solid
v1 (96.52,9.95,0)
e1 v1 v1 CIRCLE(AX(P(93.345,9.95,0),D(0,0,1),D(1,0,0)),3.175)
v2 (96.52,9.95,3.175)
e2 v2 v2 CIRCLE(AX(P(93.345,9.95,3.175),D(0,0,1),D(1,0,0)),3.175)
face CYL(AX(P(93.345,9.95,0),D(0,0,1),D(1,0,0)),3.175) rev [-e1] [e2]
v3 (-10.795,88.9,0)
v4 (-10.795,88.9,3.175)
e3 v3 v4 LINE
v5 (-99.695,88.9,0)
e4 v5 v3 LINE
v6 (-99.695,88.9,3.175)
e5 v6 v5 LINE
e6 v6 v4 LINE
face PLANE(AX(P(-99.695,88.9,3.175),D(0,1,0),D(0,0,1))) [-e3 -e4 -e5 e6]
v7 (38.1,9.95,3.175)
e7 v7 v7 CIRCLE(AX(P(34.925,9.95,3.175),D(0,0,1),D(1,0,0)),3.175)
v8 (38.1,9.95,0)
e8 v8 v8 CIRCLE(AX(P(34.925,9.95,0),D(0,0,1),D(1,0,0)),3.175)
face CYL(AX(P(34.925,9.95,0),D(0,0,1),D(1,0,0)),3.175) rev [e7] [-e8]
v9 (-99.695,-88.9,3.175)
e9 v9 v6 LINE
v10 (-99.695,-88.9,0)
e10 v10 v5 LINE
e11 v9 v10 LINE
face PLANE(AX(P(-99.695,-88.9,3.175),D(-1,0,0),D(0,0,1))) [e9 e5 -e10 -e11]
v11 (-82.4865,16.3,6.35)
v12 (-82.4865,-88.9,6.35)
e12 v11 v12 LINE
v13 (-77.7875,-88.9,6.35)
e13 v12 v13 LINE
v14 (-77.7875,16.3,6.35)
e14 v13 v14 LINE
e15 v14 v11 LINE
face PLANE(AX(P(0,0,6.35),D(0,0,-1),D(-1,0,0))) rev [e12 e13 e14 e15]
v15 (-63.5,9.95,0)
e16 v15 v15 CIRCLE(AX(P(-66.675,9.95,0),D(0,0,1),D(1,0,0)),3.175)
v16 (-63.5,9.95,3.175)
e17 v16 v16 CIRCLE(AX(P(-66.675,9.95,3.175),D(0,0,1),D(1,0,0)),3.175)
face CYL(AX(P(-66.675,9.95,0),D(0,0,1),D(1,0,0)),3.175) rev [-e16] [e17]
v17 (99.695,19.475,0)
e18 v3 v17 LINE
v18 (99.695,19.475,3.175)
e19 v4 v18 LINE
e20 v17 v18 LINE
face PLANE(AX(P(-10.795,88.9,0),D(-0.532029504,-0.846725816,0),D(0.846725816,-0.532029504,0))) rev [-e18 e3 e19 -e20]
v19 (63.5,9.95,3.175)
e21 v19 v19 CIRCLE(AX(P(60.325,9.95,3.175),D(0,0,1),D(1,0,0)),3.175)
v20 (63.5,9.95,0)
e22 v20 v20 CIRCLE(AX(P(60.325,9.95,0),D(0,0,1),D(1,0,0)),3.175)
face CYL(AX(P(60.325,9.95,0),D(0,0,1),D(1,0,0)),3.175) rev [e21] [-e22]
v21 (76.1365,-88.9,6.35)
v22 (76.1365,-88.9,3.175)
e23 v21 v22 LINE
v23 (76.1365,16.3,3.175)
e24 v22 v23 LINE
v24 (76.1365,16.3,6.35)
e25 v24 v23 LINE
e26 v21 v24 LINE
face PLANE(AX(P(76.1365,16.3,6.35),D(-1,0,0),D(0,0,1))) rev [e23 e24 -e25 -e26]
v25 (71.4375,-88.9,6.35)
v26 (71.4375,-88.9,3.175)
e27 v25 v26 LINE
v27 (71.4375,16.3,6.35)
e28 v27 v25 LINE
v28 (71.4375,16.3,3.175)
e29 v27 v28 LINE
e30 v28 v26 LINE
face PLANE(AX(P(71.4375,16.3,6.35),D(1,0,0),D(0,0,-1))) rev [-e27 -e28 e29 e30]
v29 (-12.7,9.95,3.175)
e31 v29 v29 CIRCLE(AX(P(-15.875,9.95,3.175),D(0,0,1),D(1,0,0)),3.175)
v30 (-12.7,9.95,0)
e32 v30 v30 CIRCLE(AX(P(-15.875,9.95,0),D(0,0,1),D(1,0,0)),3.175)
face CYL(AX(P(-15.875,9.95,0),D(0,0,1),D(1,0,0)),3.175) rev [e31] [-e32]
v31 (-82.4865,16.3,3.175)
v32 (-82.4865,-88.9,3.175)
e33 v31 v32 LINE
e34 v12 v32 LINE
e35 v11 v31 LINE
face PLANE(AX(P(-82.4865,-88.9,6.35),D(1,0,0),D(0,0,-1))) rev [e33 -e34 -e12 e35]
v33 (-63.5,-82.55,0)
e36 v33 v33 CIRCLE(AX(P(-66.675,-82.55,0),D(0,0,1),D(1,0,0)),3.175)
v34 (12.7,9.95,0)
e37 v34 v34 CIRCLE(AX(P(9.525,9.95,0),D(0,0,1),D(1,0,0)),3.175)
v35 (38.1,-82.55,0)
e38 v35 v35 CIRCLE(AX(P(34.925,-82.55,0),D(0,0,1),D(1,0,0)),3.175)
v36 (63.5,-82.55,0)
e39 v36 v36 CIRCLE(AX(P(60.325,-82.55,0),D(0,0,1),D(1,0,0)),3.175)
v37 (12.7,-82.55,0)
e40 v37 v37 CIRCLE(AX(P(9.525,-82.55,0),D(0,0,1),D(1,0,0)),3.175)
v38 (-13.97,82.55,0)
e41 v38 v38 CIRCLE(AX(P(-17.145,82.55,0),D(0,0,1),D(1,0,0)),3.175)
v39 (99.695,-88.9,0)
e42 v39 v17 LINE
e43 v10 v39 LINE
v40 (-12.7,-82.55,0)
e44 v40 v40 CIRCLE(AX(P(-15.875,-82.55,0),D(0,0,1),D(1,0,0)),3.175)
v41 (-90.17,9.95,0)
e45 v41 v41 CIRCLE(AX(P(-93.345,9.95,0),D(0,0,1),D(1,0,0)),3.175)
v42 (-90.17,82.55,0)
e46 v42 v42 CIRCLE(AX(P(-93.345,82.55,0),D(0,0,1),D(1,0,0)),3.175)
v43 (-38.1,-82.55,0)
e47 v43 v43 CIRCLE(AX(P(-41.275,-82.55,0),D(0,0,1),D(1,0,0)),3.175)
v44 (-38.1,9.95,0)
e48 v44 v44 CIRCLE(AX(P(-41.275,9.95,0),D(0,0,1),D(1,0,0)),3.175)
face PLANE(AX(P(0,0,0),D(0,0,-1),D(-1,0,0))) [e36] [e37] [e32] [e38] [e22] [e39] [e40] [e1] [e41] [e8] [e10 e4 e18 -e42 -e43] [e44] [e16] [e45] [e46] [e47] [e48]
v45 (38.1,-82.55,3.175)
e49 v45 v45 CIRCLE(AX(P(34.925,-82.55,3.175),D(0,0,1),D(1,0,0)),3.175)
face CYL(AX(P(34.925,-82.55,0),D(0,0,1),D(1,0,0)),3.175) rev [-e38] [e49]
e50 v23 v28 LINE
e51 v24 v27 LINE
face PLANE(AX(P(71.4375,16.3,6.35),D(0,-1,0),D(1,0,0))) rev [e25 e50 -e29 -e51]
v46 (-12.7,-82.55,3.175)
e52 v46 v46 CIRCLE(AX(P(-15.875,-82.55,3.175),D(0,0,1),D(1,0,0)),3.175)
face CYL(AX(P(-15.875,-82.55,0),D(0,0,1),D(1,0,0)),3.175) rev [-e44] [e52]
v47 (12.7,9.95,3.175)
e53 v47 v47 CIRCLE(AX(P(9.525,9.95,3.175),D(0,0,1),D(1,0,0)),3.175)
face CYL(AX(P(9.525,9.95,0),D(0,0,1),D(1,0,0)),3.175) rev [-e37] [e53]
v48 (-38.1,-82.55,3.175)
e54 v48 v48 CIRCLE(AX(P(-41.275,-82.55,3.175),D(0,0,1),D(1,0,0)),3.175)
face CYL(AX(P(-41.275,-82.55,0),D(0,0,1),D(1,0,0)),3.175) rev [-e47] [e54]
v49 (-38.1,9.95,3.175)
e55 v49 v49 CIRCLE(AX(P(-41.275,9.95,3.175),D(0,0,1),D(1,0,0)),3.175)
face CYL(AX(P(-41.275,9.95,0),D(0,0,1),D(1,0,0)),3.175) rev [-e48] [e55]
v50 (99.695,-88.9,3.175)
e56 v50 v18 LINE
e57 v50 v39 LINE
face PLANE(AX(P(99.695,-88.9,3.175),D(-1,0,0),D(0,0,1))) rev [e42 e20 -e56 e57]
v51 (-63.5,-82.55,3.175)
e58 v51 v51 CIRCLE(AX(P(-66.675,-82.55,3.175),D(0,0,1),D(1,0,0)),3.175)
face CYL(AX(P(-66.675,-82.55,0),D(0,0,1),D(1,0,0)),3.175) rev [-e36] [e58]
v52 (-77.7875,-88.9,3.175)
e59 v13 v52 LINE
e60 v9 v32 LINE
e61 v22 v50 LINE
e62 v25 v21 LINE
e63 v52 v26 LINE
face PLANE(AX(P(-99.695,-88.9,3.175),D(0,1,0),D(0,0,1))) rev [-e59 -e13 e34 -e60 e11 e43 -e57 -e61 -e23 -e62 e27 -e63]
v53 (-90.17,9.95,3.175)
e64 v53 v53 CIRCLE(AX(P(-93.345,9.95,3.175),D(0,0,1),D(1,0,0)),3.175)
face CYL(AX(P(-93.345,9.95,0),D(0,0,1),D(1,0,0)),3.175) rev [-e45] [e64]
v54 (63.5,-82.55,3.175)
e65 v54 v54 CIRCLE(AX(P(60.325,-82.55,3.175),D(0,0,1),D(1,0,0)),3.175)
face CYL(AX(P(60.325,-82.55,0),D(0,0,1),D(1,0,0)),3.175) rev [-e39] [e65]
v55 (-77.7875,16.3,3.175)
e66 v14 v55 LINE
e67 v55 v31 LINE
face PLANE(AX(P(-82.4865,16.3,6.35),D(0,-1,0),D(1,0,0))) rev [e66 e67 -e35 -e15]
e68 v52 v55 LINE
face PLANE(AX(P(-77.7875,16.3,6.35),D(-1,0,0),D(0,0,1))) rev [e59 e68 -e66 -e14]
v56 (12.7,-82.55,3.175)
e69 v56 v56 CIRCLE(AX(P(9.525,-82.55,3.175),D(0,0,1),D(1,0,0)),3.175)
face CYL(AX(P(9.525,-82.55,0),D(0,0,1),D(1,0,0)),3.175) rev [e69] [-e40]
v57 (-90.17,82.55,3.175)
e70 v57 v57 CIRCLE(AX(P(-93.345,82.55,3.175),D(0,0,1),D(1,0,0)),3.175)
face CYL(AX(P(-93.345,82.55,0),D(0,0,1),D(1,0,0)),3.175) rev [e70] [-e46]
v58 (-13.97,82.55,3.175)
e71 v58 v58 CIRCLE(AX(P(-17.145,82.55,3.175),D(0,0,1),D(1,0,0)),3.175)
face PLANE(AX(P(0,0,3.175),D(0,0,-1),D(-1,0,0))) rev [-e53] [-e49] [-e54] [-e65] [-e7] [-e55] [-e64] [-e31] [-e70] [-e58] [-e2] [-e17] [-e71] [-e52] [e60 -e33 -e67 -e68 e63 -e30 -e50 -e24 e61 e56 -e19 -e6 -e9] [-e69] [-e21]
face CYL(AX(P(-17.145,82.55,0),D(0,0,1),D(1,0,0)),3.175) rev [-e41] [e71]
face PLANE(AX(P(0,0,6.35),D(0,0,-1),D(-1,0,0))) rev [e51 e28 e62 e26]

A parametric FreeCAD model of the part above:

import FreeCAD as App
import Part
import Sketcher
from FreeCAD import Vector
Q = App.Units.Quantity

doc = App.newDocument("Part")
body = doc.addObject("PartDesign::Body", "Body")

# Sketch on XY plane
sketch1 = doc.addObject("Sketcher::SketchObject", "Sketch")
body.addObject(sketch1)
sketch1.AttachmentSupport = (doc.XY_Plane, [""])
sketch1.MapMode = "FlatFace"
sketch1.addGeometry(Part.LineSegment(Vector(-100, 89, 0), Vector(-100, -89, 0)), False)
sketch1.addGeometry(Part.LineSegment(Vector(-100, -89, 0), Vector(100, -89, 0)), False)
sketch1.addGeometry(Part.LineSegment(Vector(100, -89, 0), Vector(100, 89, 0)), False)
sketch1.addGeometry(Part.LineSegment(Vector(100, 89, 0), Vector(-100, 89, 0)), False)
sketch1.addConstraint(Sketcher.Constraint("Coincident", 0, 2, 1, 1))
sketch1.addConstraint(Sketcher.Constraint("Coincident", 1, 2, 2, 1))
sketch1.addConstraint(Sketcher.Constraint("Coincident", 2, 2, 3, 1))
sketch1.addConstraint(Sketcher.Constraint("Coincident", 3, 2, 0, 1))
sketch1.addConstraint(Sketcher.Constraint("Vertical", 0))
sketch1.addConstraint(Sketcher.Constraint("Horizontal", 1))
sketch1.addConstraint(Sketcher.Constraint("Vertical", 2))
sketch1.addConstraint(Sketcher.Constraint("Horizontal", 3))
sketch1.addConstraint(Sketcher.Constraint("Symmetric", 0, 2, 2, 2, -1, 1))
sketch1.addConstraint(Sketcher.Constraint("DistanceY", 0, 2, 0, 1, Q("7 in")))
sketch1.addConstraint(Sketcher.Constraint("DistanceX", 1, 1, 1, 2, Q("7.85 in")))
pad1 = doc.addObject("PartDesign::Pad", "Pad")
body.addObject(pad1)
pad1.Profile = sketch1
pad1.Length = Q("0.125 in")

# Sketch on XY plane
sketch2 = doc.addObject("Sketcher::SketchObject", "Sketch001")
body.addObject(sketch2)
sketch2.AttachmentSupport = (doc.XY_Plane, [""])
sketch2.MapMode = "FlatFace"
sketch2.AttachmentOffset = App.Placement(Vector(0, 0, 0.125 * 25.4), App.Rotation())
sketch2.addGeometry(Part.LineSegment(Vector(100, 19, 0), Vector(100, 89, 0)), False)
sketch2.addGeometry(Part.LineSegment(Vector(100, 89, 0), Vector(-11, 89, 0)), False)
sketch2.addGeometry(Part.LineSegment(Vector(-11, 89, 0), Vector(100, 19, 0)), False)
sketch2.addConstraint(Sketcher.Constraint("Coincident", 0, 2, 1, 1))
sketch2.addConstraint(Sketcher.Constraint("Coincident", 1, 2, 2, 1))
sketch2.addConstraint(Sketcher.Constraint("Coincident", 2, 2, 0, 1))
sketch2.addConstraint(Sketcher.Constraint("Vertical", 0))
sketch2.addConstraint(Sketcher.Constraint("Horizontal", 1))
sketch2.addConstraint(Sketcher.Constraint("DistanceX", 1, 2, 1, 1, Q("4.35 in")))
sketch2.addConstraint(Sketcher.Constraint("DistanceY", -1, 1, 0, 2, Q("3.5 in")))
sketch2.addConstraint(Sketcher.Constraint("DistanceX", -1, 1, 0, 2, Q("3.925 in")))
sketch2.addConstraint(Sketcher.Constraint("DistanceY", 0, 1, 0, 2, 69.425))
pocket1 = doc.addObject("PartDesign::Pocket", "Pocket")
body.addObject(pocket1)
pocket1.Profile = sketch2
pocket1.Type = "ThroughAll"

# Sketch on XY plane
sketch3 = doc.addObject("Sketcher::SketchObject", "Sketch002")
body.addObject(sketch3)
sketch3.AttachmentSupport = (doc.XY_Plane, [""])
sketch3.MapMode = "FlatFace"
sketch3.AttachmentOffset = App.Placement(Vector(0, 0, 0.125 * 25.4), App.Rotation())
sketch3.addGeometry(Part.Circle(Vector(-93.3, 82.5, 0), Vector(0, 0, 1), 3.2), False)
sketch3.addGeometry(Part.Circle(Vector(-93.3, 9.9, 0), Vector(0, 0, 1), 3.2), False)
sketch3.addGeometry(Part.Circle(Vector(93.3, 9.9, 0), Vector(0, 0, 1), 3.2), False)
sketch3.addGeometry(Part.Circle(Vector(-66.7, 9.9, 0), Vector(0, 0, 1), 3.2), False)
sketch3.addGeometry(Part.Circle(Vector(-41.3, 9.9, 0), Vector(0, 0, 1), 3.2), False)
sketch3.addGeometry(Part.Circle(Vector(-15.9, 9.9, 0), Vector(0, 0, 1), 3.2), False)
sketch3.addGeometry(Part.Circle(Vector(9.5, 9.9, 0), Vector(0, 0, 1), 3.2), False)
sketch3.addGeometry(Part.Circle(Vector(34.9, 9.9, 0), Vector(0, 0, 1), 3.2), False)
sketch3.addGeometry(Part.Circle(Vector(60.3, 9.9, 0), Vector(0, 0, 1), 3.2), False)
sketch3.addGeometry(Part.Circle(Vector(-17.1, 82.5, 0), Vector(0, 0, 1), 3.2), False)
sketch3.addGeometry(Part.Circle(Vector(-66.7, -82.5, 0), Vector(0, 0, 1), 3.2), False)
sketch3.addGeometry(Part.Circle(Vector(-41.3, -82.5, 0), Vector(0, 0, 1), 3.2), False)
sketch3.addGeometry(Part.Circle(Vector(-15.9, -82.5, 0), Vector(0, 0, 1), 3.2), False)
sketch3.addGeometry(Part.Circle(Vector(9.5, -82.5, 0), Vector(0, 0, 1), 3.2), False)
sketch3.addGeometry(Part.Circle(Vector(34.9, -82.5, 0), Vector(0, 0, 1), 3.2), False)
sketch3.addGeometry(Part.Circle(Vector(60.3, -82.5, 0), Vector(0, 0, 1), 3.2), False)
sketch3.addConstraint(Sketcher.Constraint("Equal", 0, 1))
sketch3.addConstraint(Sketcher.Constraint("Equal", 1, 2))
sketch3.addConstraint(Sketcher.Constraint("Equal", 2, 3))
sketch3.addConstraint(Sketcher.Constraint("Equal", 3, 4))
sketch3.addConstraint(Sketcher.Constraint("Equal", 4, 5))
sketch3.addConstraint(Sketcher.Constraint("Equal", 5, 6))
sketch3.addConstraint(Sketcher.Constraint("Equal", 6, 7))
sketch3.addConstraint(Sketcher.Constraint("Equal", 7, 8))
sketch3.addConstraint(Sketcher.Constraint("Equal", 8, 9))
sketch3.addConstraint(Sketcher.Constraint("Equal", 9, 10))
sketch3.addConstraint(Sketcher.Constraint("Equal", 10, 11))
sketch3.addConstraint(Sketcher.Constraint("Equal", 11, 12))
sketch3.addConstraint(Sketcher.Constraint("Equal", 12, 13))
sketch3.addConstraint(Sketcher.Constraint("Equal", 13, 14))
sketch3.addConstraint(Sketcher.Constraint("Equal", 14, 15))
sketch3.addConstraint(Sketcher.Constraint("Symmetric", 1, 3, 2, 3, -2))
sketch3.addConstraint(Sketcher.Constraint("Horizontal", 2, 3, 3, 3))
sketch3.addConstraint(Sketcher.Constraint("Horizontal", 3, 3, 4, 3))
sketch3.addConstraint(Sketcher.Constraint("Horizontal", 4, 3, 5, 3))
sketch3.addConstraint(Sketcher.Constraint("Horizontal", 5, 3, 6, 3))
sketch3.addConstraint(Sketcher.Constraint("Horizontal", 6, 3, 7, 3))
sketch3.addConstraint(Sketcher.Constraint("Horizontal", 7, 3, 8, 3))
sketch3.addConstraint(Sketcher.Constraint("Horizontal", 0, 3, 9, 3))
sketch3.addConstraint(Sketcher.Constraint("Horizontal", 10, 3, 11, 3))
sketch3.addConstraint(Sketcher.Constraint("Horizontal", 11, 3, 12, 3))
sketch3.addConstraint(Sketcher.Constraint("Horizontal", 12, 3, 13, 3))
sketch3.addConstraint(Sketcher.Constraint("Horizontal", 13, 3, 14, 3))
sketch3.addConstraint(Sketcher.Constraint("Horizontal", 14, 3, 15, 3))
sketch3.addConstraint(Sketcher.Constraint("Vertical", 0, 3, 1, 3))
sketch3.addConstraint(Sketcher.Constraint("Vertical", 3, 3, 10, 3))
sketch3.addConstraint(Sketcher.Constraint("Vertical", 4, 3, 11, 3))
sketch3.addConstraint(Sketcher.Constraint("Vertical", 5, 3, 12, 3))
sketch3.addConstraint(Sketcher.Constraint("Vertical", 6, 3, 13, 3))
sketch3.addConstraint(Sketcher.Constraint("Vertical", 7, 3, 14, 3))
sketch3.addConstraint(Sketcher.Constraint("Vertical", 8, 3, 15, 3))
sketch3.addConstraint(Sketcher.Constraint("Diameter", 0, Q("0.25 in")))
sketch3.addConstraint(Sketcher.Constraint("DistanceX", 3, 3, 4, 3, Q("1 in")))
sketch3.addConstraint(Sketcher.Constraint("DistanceX", 4, 3, 5, 3, Q("1 in")))
sketch3.addConstraint(Sketcher.Constraint("DistanceX", 5, 3, 6, 3, Q("1 in")))
sketch3.addConstraint(Sketcher.Constraint("DistanceX", 6, 3, 7, 3, Q("1 in")))
sketch3.addConstraint(Sketcher.Constraint("DistanceX", 7, 3, 8, 3, Q("1 in")))
sketch3.addConstraint(Sketcher.Constraint("DistanceX", 0, 3, 9, 3, Q("3 in")))
sketch3.addConstraint(Sketcher.Constraint("DistanceX", 3, 3, 2, 3, Q("6.3 in")))
sketch3.addConstraint(Sketcher.Constraint("DistanceY", -1, 1, 0, 3, Q("3.25 in")))
sketch3.addConstraint(Sketcher.Constraint("DistanceY", 10, 3, -1, 1, Q("3.25 in")))
sketch3.addConstraint(Sketcher.Constraint("DistanceX", 1, 3, 2, 3, Q("7.35 in")))
sketch3.addConstraint(Sketcher.Constraint("DistanceY", -1, 1, 1, 3, 9.95))
pocket2 = doc.addObject("PartDesign::Pocket", "Pocket001")
body.addObject(pocket2)
pocket2.Profile = sketch3
pocket2.Type = "ThroughAll"

# Sketch on XY plane
sketch4 = doc.addObject("Sketcher::SketchObject", "Sketch003")
body.addObject(sketch4)
sketch4.AttachmentSupport = (doc.XY_Plane, [""])
sketch4.MapMode = "FlatFace"
sketch4.AttachmentOffset = App.Placement(Vector(0, 0, 0.125 * 25.4), App.Rotation())
sketch4.addGeometry(Part.LineSegment(Vector(-82.5, 16.3, 0), Vector(-82.5, -88.9, 0)), False)
sketch4.addGeometry(Part.LineSegment(Vector(-82.5, -88.9, 0), Vector(-77.8, -88.9, 0)), False)
sketch4.addGeometry(Part.LineSegment(Vector(-77.8, -88.9, 0), Vector(-77.8, 16.3, 0)), False)
sketch4.addGeometry(Part.LineSegment(Vector(-77.8, 16.3, 0), Vector(-82.5, 16.3, 0)), False)
sketch4.addGeometry(Part.LineSegment(Vector(71.4, 16.3, 0), Vector(71.4, -88.9, 0)), False)
sketch4.addGeometry(Part.LineSegment(Vector(71.4, -88.9, 0), Vector(76.1, -88.9, 0)), False)
sketch4.addGeometry(Part.LineSegment(Vector(76.1, -88.9, 0), Vector(76.1, 16.3, 0)), False)
sketch4.addGeometry(Part.LineSegment(Vector(76.1, 16.3, 0), Vector(71.4, 16.3, 0)), False)
sketch4.addConstraint(Sketcher.Constraint("Coincident", 0, 2, 1, 1))
sketch4.addConstraint(Sketcher.Constraint("Coincident", 1, 2, 2, 1))
sketch4.addConstraint(Sketcher.Constraint("Coincident", 2, 2, 3, 1))
sketch4.addConstraint(Sketcher.Constraint("Coincident", 3, 2, 0, 1))
sketch4.addConstraint(Sketcher.Constraint("Coincident", 4, 2, 5, 1))
sketch4.addConstraint(Sketcher.Constraint("Coincident", 5, 2, 6, 1))
sketch4.addConstraint(Sketcher.Constraint("Coincident", 6, 2, 7, 1))
sketch4.addConstraint(Sketcher.Constraint("Coincident", 7, 2, 4, 1))
sketch4.addConstraint(Sketcher.Constraint("Vertical", 0))
sketch4.addConstraint(Sketcher.Constraint("Horizontal", 1))
sketch4.addConstraint(Sketcher.Constraint("Vertical", 2))
sketch4.addConstraint(Sketcher.Constraint("Horizontal", 3))
sketch4.addConstraint(Sketcher.Constraint("Vertical", 4))
sketch4.addConstraint(Sketcher.Constraint("Horizontal", 5))
sketch4.addConstraint(Sketcher.Constraint("Vertical", 6))
sketch4.addConstraint(Sketcher.Constraint("Horizontal", 7))
sketch4.addConstraint(Sketcher.Constraint("Horizontal", 1, 2, 4, 2))
sketch4.addConstraint(Sketcher.Constraint("Horizontal", 3, 2, 6, 2))
sketch4.addConstraint(Sketcher.Constraint("Equal", 3, 5))
sketch4.addConstraint(Sketcher.Constraint("DistanceY", 0, 2, -1, 1, Q("3.5 in")))
sketch4.addConstraint(Sketcher.Constraint("DistanceX", 1, 1, 1, 2, Q("0.185 in")))
sketch4.addConstraint(Sketcher.Constraint("DistanceX", 0, 2, 4, 2, Q("6.06 in")))
sketch4.addConstraint(Sketcher.Constraint("DistanceX", 1, 2, -1, 1, Q("3.0625 in")))
sketch4.addConstraint(Sketcher.Constraint("DistanceY", 0, 2, 0, 1, 105.2))
pad2 = doc.addObject("PartDesign::Pad", "Pad001")
body.addObject(pad2)
pad2.Profile = sketch4
pad2.Length = Q("0.125 in")

doc.recompute()
